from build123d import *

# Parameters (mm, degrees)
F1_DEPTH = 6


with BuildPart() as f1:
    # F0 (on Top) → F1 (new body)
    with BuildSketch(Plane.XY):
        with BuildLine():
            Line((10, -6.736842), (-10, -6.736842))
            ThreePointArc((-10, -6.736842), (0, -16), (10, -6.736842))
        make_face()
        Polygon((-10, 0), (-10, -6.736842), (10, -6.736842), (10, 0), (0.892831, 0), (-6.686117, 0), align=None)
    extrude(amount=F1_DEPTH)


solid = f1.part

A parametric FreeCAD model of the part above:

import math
import FreeCAD as App
import Part
import Sketcher
Q = App.Units.Quantity

doc = App.newDocument("Part")
body = doc.addObject("PartDesign::Body", "Body")

# Sketch on XY plane
sketch1 = body.newObject("Sketcher::SketchObject", "Sketch")
sketch1.AttachmentSupport = (doc.getObject("XY_Plane"), [""])
sketch1.MapMode = "FlatFace"
sketch1.addGeometry(Part.ArcOfCircle(Part.Circle(App.Vector(0, -6, 0), App.Vector(0, 0, 1), 10), math.radians(-176), math.radians(-4)), False)
sketch1.addGeometry(Part.LineSegment(App.Vector(10, -7, 0), App.Vector(10, 0, 0)), False)
sketch1.addGeometry(Part.LineSegment(App.Vector(10, 0, 0), App.Vector(-10, 0, 0)), False)
sketch1.addGeometry(Part.LineSegment(App.Vector(-10, 0, 0), App.Vector(-10, -7, 0)), False)
sketch1.addConstraint(Sketcher.Constraint("Coincident", 0, 2, 1, 1))
sketch1.addConstraint(Sketcher.Constraint("Coincident", 1, 2, 2, 1))
sketch1.addConstraint(Sketcher.Constraint("Coincident", 2, 2, 3, 1))
sketch1.addConstraint(Sketcher.Constraint("Coincident", 3, 2, 0, 1))
sketch1.addConstraint(Sketcher.Constraint("Vertical", 1))
sketch1.addConstraint(Sketcher.Constraint("Horizontal", 2))
sketch1.addConstraint(Sketcher.Constraint("Vertical", 3))
sketch1.addConstraint(Sketcher.Constraint("Symmetric", 1, 2, 2, 2, -1, 1))
sketch1.addConstraint(Sketcher.Constraint("PointOnObject", 0, 3, -2))
sketch1.addConstraint(Sketcher.Constraint("DistanceX", 2, 2, 2, 1, Q("20 mm")))
sketch1.addConstraint(Sketcher.Constraint("Radius", 0, Q("10.029306 mm")))
sketch1.addConstraint(Sketcher.Constraint("DistanceY", 1, 1, 1, 2, Q("6.736842 mm")))
pad1 = body.newObject("PartDesign::Pad", "Pad")
pad1.Profile = sketch1
pad1.Length = 6

doc.recompute()
